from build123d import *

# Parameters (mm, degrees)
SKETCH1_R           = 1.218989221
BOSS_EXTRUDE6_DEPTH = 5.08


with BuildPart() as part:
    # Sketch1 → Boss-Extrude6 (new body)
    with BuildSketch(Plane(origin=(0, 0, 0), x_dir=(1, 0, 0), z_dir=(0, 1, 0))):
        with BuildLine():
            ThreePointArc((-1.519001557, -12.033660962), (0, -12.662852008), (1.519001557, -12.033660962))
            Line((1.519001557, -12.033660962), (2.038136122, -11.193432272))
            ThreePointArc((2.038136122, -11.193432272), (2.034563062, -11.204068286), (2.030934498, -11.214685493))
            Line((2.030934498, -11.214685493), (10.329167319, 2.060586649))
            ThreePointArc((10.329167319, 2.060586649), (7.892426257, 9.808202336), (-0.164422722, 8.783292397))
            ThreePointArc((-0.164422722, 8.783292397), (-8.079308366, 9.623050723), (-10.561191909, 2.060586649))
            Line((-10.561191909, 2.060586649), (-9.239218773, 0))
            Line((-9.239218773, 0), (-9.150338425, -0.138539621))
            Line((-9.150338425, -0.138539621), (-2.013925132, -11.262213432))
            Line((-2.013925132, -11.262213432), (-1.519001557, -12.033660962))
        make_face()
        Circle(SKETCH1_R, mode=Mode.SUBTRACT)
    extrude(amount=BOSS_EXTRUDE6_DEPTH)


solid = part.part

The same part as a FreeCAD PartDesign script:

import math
import FreeCAD as App
import Part
import Sketcher

V = App.Vector
Q = App.Units.Quantity

doc = App.newDocument("Part")
body = doc.addObject("PartDesign::Body", "Body")

# Sketch on XZ plane
sketch1 = body.newObject("Sketcher::SketchObject", "Sketch")
sketch1.AttachmentSupport = (doc.getObject("XZ_Plane"), [""])
sketch1.MapMode = "FlatFace"
sketch1.addGeometry(Part.ArcOfCircle(Part.Circle(V(0, 10.515, 0), V(0, 0, 1), 2.148), math.radians(45), math.radians(135)), False)
sketch1.addGeometry(Part.LineSegment(V(1.519, 12.034, 0), V(2.038, 11.193, 0)), False)
sketch1.addGeometry(Part.ArcOfCircle(Part.Circle(V(0, 10.515, 0), V(0, 0, 1), 2.148), math.radians(18.42), math.radians(19.02)), False)
sketch1.addGeometry(Part.LineSegment(V(2.031, 11.215, 0), V(10.329, -2.061, 0)), False)
sketch1.addGeometry(Part.ArcOfCircle(Part.Circle(V(4.477, -4.477, 0), V(0, 0, 1), 6.331), math.radians(-137), math.radians(22)), False)
sketch1.addGeometry(Part.ArcOfCircle(Part.Circle(V(-4.641, -4.306, 0), V(0, 0, 1), 6.331), math.radians(159), math.radians(315)), False)
sketch1.addGeometry(Part.LineSegment(V(-10.561, -2.061, 0), V(-9.239, 0, 0)), False)
sketch1.addGeometry(Part.LineSegment(V(-9.239, 0, 0), V(-9.15, 0.139, 0)), False)
sketch1.addGeometry(Part.LineSegment(V(-9.15, 0.139, 0), V(-2.014, 11.262, 0)), False)
sketch1.addGeometry(Part.LineSegment(V(-2.014, 11.262, 0), V(-1.519, 12.034, 0)), False)
sketch1.addGeometry(Part.Circle(V(0, 0, 0), V(0, 0, 1), 1.219), False)
sketch1.addConstraint(Sketcher.Constraint("Coincident", 0, 1, 1, 1))
sketch1.addConstraint(Sketcher.Constraint("Coincident", 1, 2, 2, 1))
sketch1.addConstraint(Sketcher.Constraint("Coincident", 2, 2, 3, 1))
sketch1.addConstraint(Sketcher.Constraint("Coincident", 3, 2, 4, 2))
sketch1.addConstraint(Sketcher.Constraint("Coincident", 4, 1, 5, 2))
sketch1.addConstraint(Sketcher.Constraint("Coincident", 5, 1, 6, 1))
sketch1.addConstraint(Sketcher.Constraint("Coincident", 6, 2, 7, 1))
sketch1.addConstraint(Sketcher.Constraint("Coincident", 7, 2, 8, 1))
sketch1.addConstraint(Sketcher.Constraint("Coincident", 8, 2, 9, 1))
sketch1.addConstraint(Sketcher.Constraint("Coincident", 9, 2, 0, 2))
sketch1.addConstraint(Sketcher.Constraint("Coincident", 10, 3, -1, 1))
sketch1.addConstraint(Sketcher.Constraint("Coincident", 2, 3, 0, 3))
sketch1.addConstraint(Sketcher.Constraint("Equal", 4, 5))
sketch1.addConstraint(Sketcher.Constraint("Symmetric", 0, 1, 9, 2, -2))
sketch1.addConstraint(Sketcher.Constraint("PointOnObject", 6, 2, -1))
sketch1.addConstraint(Sketcher.Constraint("Parallel", 6, 7))
sketch1.addConstraint(Sketcher.Constraint("Parallel", 7, 8))
sketch1.addConstraint(Sketcher.Constraint("Parallel", 8, 9))
sketch1.addConstraint(Sketcher.Constraint("Horizontal", 3, 2, 5, 1))
sketch1.addConstraint(Sketcher.Constraint("Diameter", 10, 2.437978))
sketch1.addConstraint(Sketcher.Constraint("Radius", 0, 2.148193))
sketch1.addConstraint(Sketcher.Constraint("Radius", 2, 2.148183))
sketch1.addConstraint(Sketcher.Constraint("Radius", 4, 6.331426))
sketch1.addConstraint(Sketcher.Constraint("Distance", 7, 0.164599))
sketch1.addConstraint(Sketcher.Constraint("DistanceY", 5, 3, -1, 1, 4.306298))
sketch1.addConstraint(Sketcher.Constraint("DistanceX", -1, 1, 0, 1, 1.519002))
sketch1.addConstraint(Sketcher.Constraint("DistanceX", 2, 2, 1, 2, 0.007202))
sketch1.addConstraint(Sketcher.Constraint("DistanceY", 4, 1, 4, 3, 4.306298))
sketch1.addConstraint(Sketcher.Constraint("DistanceX", 6, 2, 5, 3, 4.597802))
sketch1.addConstraint(Sketcher.Constraint("Distance", 6, 2.448189))
sketch1.addConstraint(Sketcher.Constraint("Distance", 8, 13.21607))
sketch1.addConstraint(Sketcher.Constraint("Distance", 9, 0.916559))
sketch1.addConstraint(Sketcher.Constraint("DistanceX", 5, 3, 4, 3, 9.118411))
sketch1.addConstraint(Sketcher.Constraint("DistanceY", 1, 2, 0, 1, 0.840229))
pad1 = body.newObject("PartDesign::Pad", "Pad")
pad1.Profile = sketch1
pad1.Length = Q("0.2 in")
pad1.Reversed = True

doc.recompute()
